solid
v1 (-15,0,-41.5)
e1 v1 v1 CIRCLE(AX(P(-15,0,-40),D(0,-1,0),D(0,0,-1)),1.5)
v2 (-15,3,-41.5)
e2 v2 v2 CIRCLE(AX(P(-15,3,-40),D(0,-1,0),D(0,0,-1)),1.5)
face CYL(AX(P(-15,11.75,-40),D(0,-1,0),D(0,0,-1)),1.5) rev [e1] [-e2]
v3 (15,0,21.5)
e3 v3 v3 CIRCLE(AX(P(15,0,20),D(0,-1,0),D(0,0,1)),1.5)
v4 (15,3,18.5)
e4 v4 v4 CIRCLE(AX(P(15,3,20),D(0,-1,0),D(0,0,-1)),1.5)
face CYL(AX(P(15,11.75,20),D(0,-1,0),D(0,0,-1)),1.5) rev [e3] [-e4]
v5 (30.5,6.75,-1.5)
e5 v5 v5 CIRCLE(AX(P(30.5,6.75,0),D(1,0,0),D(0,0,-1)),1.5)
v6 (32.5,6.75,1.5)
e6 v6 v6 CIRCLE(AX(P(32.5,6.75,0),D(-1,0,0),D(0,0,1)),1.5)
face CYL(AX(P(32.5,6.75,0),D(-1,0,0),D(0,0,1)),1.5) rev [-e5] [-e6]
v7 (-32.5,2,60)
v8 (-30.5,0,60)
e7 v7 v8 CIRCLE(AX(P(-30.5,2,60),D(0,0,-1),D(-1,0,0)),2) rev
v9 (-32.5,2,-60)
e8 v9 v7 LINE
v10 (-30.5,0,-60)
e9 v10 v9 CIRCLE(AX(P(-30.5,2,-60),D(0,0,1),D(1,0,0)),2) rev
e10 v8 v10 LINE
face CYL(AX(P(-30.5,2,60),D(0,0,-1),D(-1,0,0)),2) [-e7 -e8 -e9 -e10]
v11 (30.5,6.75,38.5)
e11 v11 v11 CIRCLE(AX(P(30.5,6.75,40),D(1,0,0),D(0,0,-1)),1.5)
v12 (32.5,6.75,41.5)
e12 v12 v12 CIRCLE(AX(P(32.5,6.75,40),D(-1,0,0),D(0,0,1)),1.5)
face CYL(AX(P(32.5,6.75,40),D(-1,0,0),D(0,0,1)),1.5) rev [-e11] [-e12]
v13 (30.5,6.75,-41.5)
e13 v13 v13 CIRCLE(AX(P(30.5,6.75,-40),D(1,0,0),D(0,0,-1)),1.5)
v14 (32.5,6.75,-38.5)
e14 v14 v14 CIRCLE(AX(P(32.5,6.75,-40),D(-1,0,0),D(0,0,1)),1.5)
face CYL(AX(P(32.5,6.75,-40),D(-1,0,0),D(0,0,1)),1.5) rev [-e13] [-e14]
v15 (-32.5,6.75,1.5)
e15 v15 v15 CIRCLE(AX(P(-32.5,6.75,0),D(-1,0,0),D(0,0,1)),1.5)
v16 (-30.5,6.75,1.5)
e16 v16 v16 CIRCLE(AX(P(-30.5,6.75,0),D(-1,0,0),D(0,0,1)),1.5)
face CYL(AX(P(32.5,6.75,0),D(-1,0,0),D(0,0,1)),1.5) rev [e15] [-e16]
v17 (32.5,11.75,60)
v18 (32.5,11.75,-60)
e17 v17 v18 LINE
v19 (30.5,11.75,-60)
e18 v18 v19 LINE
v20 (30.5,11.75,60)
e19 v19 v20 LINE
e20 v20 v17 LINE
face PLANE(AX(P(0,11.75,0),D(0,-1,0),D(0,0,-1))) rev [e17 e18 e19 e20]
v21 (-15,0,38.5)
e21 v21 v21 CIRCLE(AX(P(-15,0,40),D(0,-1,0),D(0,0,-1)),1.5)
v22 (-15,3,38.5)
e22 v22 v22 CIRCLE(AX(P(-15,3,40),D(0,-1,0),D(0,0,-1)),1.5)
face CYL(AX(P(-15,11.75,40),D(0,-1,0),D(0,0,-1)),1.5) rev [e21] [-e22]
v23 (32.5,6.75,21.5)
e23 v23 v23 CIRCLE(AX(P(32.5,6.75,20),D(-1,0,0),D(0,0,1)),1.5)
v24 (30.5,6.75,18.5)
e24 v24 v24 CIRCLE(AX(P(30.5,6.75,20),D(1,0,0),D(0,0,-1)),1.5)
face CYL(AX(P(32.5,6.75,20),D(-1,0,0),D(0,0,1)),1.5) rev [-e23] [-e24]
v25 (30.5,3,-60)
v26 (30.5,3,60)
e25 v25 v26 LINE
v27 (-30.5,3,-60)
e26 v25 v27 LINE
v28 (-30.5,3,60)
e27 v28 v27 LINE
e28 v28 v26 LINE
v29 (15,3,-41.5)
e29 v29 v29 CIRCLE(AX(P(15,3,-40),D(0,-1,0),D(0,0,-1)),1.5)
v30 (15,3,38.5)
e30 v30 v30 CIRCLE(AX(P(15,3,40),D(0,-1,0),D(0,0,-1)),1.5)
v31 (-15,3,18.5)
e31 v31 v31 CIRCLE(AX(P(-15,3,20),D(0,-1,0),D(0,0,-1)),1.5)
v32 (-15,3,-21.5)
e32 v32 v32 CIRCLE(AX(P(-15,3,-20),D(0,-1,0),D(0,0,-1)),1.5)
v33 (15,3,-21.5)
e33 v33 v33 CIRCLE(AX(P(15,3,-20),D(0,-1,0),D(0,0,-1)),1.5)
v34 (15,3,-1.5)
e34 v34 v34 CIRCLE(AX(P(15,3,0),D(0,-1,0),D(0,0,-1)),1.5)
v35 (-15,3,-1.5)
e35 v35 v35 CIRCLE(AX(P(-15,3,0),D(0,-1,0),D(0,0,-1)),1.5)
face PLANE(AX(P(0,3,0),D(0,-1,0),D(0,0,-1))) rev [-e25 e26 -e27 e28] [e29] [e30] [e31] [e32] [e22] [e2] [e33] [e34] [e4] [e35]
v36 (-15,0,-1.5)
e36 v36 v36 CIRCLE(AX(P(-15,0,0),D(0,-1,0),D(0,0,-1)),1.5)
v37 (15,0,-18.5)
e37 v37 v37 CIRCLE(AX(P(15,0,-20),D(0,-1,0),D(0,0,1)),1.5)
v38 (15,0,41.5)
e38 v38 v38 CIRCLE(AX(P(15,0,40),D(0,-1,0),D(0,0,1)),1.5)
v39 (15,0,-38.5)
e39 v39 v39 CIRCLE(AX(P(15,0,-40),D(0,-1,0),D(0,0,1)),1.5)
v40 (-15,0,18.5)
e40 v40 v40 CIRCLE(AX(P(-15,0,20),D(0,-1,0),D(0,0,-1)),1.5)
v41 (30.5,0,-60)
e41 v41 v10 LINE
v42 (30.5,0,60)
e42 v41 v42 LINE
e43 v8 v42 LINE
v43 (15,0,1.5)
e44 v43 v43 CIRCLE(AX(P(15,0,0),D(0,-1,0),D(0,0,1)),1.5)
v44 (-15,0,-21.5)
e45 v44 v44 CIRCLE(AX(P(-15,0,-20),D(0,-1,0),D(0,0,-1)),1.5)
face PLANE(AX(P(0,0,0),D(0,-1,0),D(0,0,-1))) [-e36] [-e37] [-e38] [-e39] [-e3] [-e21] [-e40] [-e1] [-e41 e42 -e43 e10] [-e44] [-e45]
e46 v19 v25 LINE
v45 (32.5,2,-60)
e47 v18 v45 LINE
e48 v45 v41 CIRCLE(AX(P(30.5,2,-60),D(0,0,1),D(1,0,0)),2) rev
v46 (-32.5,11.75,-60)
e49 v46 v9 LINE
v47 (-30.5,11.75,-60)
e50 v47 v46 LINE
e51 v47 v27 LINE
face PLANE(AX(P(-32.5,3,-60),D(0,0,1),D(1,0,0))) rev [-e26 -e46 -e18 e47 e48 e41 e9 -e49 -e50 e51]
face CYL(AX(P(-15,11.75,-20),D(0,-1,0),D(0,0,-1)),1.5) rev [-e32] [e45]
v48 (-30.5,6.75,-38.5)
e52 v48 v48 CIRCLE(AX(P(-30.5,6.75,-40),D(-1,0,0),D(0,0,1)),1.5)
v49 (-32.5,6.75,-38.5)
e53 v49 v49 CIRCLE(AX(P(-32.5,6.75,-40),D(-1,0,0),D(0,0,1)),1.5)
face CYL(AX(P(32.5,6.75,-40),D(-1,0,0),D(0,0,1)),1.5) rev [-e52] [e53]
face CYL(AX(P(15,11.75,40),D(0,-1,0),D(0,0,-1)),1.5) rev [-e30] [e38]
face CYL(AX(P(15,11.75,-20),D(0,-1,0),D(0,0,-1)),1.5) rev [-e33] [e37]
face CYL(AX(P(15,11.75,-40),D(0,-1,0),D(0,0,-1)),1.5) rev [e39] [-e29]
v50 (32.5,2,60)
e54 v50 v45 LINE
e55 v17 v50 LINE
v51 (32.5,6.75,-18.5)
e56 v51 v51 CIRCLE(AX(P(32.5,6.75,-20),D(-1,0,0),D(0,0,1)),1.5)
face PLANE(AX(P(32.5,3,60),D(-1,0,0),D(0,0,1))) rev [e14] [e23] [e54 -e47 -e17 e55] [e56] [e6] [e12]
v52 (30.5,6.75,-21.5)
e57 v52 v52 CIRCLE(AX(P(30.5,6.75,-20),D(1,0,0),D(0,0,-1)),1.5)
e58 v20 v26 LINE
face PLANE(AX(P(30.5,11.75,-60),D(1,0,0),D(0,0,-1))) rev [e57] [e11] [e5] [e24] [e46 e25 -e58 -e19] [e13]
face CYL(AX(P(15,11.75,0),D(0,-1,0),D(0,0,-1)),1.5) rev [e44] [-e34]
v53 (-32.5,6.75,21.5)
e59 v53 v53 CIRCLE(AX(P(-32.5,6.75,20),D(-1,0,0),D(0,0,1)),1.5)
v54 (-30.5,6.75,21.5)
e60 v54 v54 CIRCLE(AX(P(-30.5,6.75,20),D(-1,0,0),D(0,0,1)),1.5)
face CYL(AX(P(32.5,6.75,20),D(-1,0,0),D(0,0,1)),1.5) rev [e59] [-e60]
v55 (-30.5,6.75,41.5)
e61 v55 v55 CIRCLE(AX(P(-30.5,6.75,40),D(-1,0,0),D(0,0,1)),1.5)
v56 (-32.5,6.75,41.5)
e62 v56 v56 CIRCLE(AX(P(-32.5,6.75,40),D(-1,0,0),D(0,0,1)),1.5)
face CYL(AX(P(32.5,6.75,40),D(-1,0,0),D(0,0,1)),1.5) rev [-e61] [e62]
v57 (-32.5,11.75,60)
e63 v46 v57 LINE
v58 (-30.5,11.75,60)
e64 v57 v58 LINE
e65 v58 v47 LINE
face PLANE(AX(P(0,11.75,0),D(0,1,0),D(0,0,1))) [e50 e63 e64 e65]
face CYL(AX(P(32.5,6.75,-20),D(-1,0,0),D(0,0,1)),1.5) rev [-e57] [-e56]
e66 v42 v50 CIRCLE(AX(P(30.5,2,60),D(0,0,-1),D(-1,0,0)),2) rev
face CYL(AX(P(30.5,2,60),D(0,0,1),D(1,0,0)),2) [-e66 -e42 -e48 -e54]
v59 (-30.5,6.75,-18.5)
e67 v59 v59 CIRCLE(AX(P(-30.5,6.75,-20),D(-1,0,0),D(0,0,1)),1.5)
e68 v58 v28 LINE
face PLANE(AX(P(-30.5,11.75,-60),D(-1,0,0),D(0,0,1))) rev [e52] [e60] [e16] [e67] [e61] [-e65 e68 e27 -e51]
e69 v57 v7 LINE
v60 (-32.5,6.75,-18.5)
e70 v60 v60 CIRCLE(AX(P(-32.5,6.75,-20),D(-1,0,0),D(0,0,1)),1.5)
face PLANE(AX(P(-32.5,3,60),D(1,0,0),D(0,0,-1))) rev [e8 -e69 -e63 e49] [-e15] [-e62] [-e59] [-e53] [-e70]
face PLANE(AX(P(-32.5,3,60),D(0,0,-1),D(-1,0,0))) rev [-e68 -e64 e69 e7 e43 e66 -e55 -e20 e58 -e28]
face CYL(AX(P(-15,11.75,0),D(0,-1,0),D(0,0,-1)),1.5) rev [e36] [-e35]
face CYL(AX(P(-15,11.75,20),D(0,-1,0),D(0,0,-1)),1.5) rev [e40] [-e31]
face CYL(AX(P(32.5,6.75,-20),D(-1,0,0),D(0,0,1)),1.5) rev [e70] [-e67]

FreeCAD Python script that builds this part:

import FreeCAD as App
import Part
import Sketcher
Q = App.Units.Quantity


def edges_at(feature, points):
    """Names of the edges that pass closest to the given points."""
    edges = feature.Shape.Edges
    near = lambda p: min(range(len(edges)), key=lambda i: edges[i].distToShape(Part.Vertex(*p))[0])
    return sorted({f"Edge{near(p) + 1}" for p in points})


def add_polygon(sketch, points):
    """Adds a closed chain of lines whose ends are joined by coincident constraints."""
    first, n = sketch.GeometryCount, len(points)
    for a, b in zip(points, points[1:] + points[:1]):
        sketch.addGeometry(Part.LineSegment(App.Vector(*a, 0), App.Vector(*b, 0)), False)
    for i in range(n):
        sketch.addConstraint(Sketcher.Constraint("Coincident", first + i, 2, first + (i + 1) % n, 1))

doc = App.newDocument("Part")
body = doc.addObject("PartDesign::Body", "Body")

# Sketch on XZ plane
sketch1 = body.newObject("Sketcher::SketchObject", "Sketch")
sketch1.AttachmentSupport = (doc.getObject("XZ_Plane"), [""])
sketch1.MapMode = "FlatFace"
add_polygon(sketch1, [(-32.5, -60), (-32.5, 60), (32.5, 60), (32.5, -60)])  # lines 0-3
sketch1.addConstraint([
    Sketcher.Constraint("Vertical", 0),
    Sketcher.Constraint("Horizontal", 1),
    Sketcher.Constraint("Vertical", 2),
    Sketcher.Constraint("Horizontal", 3),
    Sketcher.Constraint("Symmetric", 0, 2, 2, 2, -1, 1),
    Sketcher.Constraint("DistanceX", 1, 1, 1, 2, Q("65 mm")),
    Sketcher.Constraint("DistanceY", 0, 1, 0, 2, Q("120 mm")),
])
pad1 = body.newObject("PartDesign::Pad", "Pad")
pad1.Profile = sketch1
pad1.Length = 3
pad1.Reversed = True

# Sketch on XZ plane
sketch2 = body.newObject("Sketcher::SketchObject", "Sketch001")
sketch2.AttachmentSupport = (doc.getObject("XZ_Plane"), [""])
sketch2.MapMode = "FlatFace"
sketch2.AttachmentOffset = App.Placement(App.Vector(0, 0, -3), App.Rotation())
add_polygon(sketch2, [(-32.5, -60), (-32.5, 60), (-30.5, 60), (-30.5, -60)])  # lines 0-3
add_polygon(sketch2, [(30.5, -60), (30.5, 60), (32.5, 60), (32.5, -60)])  # lines 4-7
sketch2.addConstraint([
    Sketcher.Constraint("Vertical", 0),
    Sketcher.Constraint("Horizontal", 1),
    Sketcher.Constraint("Vertical", 2),
    Sketcher.Constraint("Horizontal", 3),
    Sketcher.Constraint("Vertical", 4),
    Sketcher.Constraint("Horizontal", 5),
    Sketcher.Constraint("Vertical", 6),
    Sketcher.Constraint("Horizontal", 7),
    Sketcher.Constraint("Symmetric", 2, 2, 4, 2, -1, 1),
    Sketcher.Constraint("Symmetric", 0, 2, 6, 2, -1, 1),
    Sketcher.Constraint("Horizontal", 1, 2, 4, 2),
    Sketcher.Constraint("DistanceX", 1, 1, 1, 2, Q("2 mm")),
    Sketcher.Constraint("DistanceY", 0, 1, 0, 2, Q("120 mm")),
    Sketcher.Constraint("DistanceX", 1, 2, 4, 2, Q("61 mm")),
])
pad2 = body.newObject("PartDesign::Pad", "Pad001")
pad2.Profile = sketch2
pad2.Length = 8.75
pad2.Reversed = True
doc.recompute()

fillet = body.newObject("PartDesign::Fillet", "Fillet")
fillet.Base = (pad2, edges_at(pad2, [(-32.5, 0, 0), (32.5, 0, 0)]))
fillet.Radius = 2

# Sketch on XZ plane
sketch3 = body.newObject("Sketcher::SketchObject", "Sketch002")
sketch3.AttachmentSupport = (doc.getObject("XZ_Plane"), [""])
sketch3.MapMode = "FlatFace"
sketch3.addGeometry([
    Part.Circle(App.Vector(-15, 40, 0), App.Vector(0, 0, 1), 1.5),  # 0
    Part.Circle(App.Vector(15, 40, 0), App.Vector(0, 0, 1), 1.5),  # 1
    Part.Circle(App.Vector(-15, 20, 0), App.Vector(0, 0, 1), 1.5),  # 2
    Part.Circle(App.Vector(15, 20, 0), App.Vector(0, 0, 1), 1.5),  # 3
    Part.Circle(App.Vector(-15, 0, 0), App.Vector(0, 0, 1), 1.5),  # 4
    Part.Circle(App.Vector(15, 0, 0), App.Vector(0, 0, 1), 1.5),  # 5
    Part.Circle(App.Vector(-15, -20, 0), App.Vector(0, 0, 1), 1.5),  # 6
    Part.Circle(App.Vector(15, -20, 0), App.Vector(0, 0, 1), 1.5),  # 7
    Part.Circle(App.Vector(-15, -40, 0), App.Vector(0, 0, 1), 1.5),  # 8
    Part.Circle(App.Vector(15, -40, 0), App.Vector(0, 0, 1), 1.5),  # 9
], False)
sketch3.addConstraint([
    Sketcher.Constraint("Equal", 0, 1),
    Sketcher.Constraint("Equal", 1, 2),
    Sketcher.Constraint("Equal", 2, 3),
    Sketcher.Constraint("Equal", 3, 4),
    Sketcher.Constraint("Equal", 4, 5),
    Sketcher.Constraint("Equal", 5, 6),
    Sketcher.Constraint("Equal", 6, 7),
    Sketcher.Constraint("Equal", 7, 8),
    Sketcher.Constraint("Equal", 8, 9),
    Sketcher.Constraint("Symmetric", 4, 3, 5, 3, -1, 1),
    Sketcher.Constraint("Symmetric", 3, 3, 6, 3, -1, 1),
    Sketcher.Constraint("Symmetric", 2, 3, 7, 3, -1, 1),
    Sketcher.Constraint("Symmetric", 1, 3, 8, 3, -1, 1),
    Sketcher.Constraint("Symmetric", 0, 3, 9, 3, -1, 1),
    Sketcher.Constraint("Symmetric", 0, 3, 1, 3, -2),
    Sketcher.Constraint("Symmetric", 2, 3, 3, 3, -2),
    Sketcher.Constraint("PointOnObject", 4, 3, -1),
    Sketcher.Constraint("Vertical", 0, 3, 2, 3),
    Sketcher.Constraint("Vertical", 2, 3, 4, 3),
    Sketcher.Constraint("Diameter", 0, Q("3 mm")),
    Sketcher.Constraint("DistanceX", 0, 3, -1, 1, Q("15 mm")),
    Sketcher.Constraint("DistanceY", -1, 1, 0, 3, Q("40 mm")),
    Sketcher.Constraint("DistanceY", -1, 1, 2, 3, Q("20 mm")),
])
pocket1 = body.newObject("PartDesign::Pocket", "Pocket")
pocket1.Profile = sketch3
pocket1.Type = "ThroughAll"

# Sketch on YZ plane
sketch4 = body.newObject("Sketcher::SketchObject", "Sketch003")
sketch4.AttachmentSupport = (doc.getObject("YZ_Plane"), [""])
sketch4.MapMode = "FlatFace"
sketch4.AttachmentOffset = App.Placement(App.Vector(0, 0, -32.5), App.Rotation())
sketch4.addGeometry([
    Part.Circle(App.Vector(6.75, 0, 0), App.Vector(0, 0, 1), 1.5),  # 0
    Part.Circle(App.Vector(6.75, -20, 0), App.Vector(0, 0, 1), 1.5),  # 1
    Part.Circle(App.Vector(6.75, -40, 0), App.Vector(0, 0, 1), 1.5),  # 2
    Part.Circle(App.Vector(6.75, 20, 0), App.Vector(0, 0, 1), 1.5),  # 3
    Part.Circle(App.Vector(6.75, 40, 0), App.Vector(0, 0, 1), 1.5),  # 4
], False)
sketch4.addConstraint([
    Sketcher.Constraint("Equal", 0, 1),
    Sketcher.Constraint("Equal", 1, 2),
    Sketcher.Constraint("Equal", 2, 3),
    Sketcher.Constraint("Equal", 3, 4),
    Sketcher.Constraint("Symmetric", 1, 3, 3, 3, -1),
    Sketcher.Constraint("Symmetric", 2, 3, 4, 3, -1),
    Sketcher.Constraint("PointOnObject", 0, 3, -1),
    Sketcher.Constraint("Vertical", 0, 3, 1, 3),
    Sketcher.Constraint("Vertical", 1, 3, 2, 3),
    Sketcher.Constraint("Diameter", 0, Q("3 mm")),
    Sketcher.Constraint("DistanceY", 1, 3, -1, 1, Q("20 mm")),
    Sketcher.Constraint("DistanceY", 2, 3, -1, 1, Q("40 mm")),
    Sketcher.Constraint("DistanceX", -1, 1, 0, 3, Q("6.75 mm")),
])
pocket2 = body.newObject("PartDesign::Pocket", "Pocket001")
pocket2.Profile = sketch4
pocket2.Type = "ThroughAll"
pocket2.Reversed = True

doc.recompute()
